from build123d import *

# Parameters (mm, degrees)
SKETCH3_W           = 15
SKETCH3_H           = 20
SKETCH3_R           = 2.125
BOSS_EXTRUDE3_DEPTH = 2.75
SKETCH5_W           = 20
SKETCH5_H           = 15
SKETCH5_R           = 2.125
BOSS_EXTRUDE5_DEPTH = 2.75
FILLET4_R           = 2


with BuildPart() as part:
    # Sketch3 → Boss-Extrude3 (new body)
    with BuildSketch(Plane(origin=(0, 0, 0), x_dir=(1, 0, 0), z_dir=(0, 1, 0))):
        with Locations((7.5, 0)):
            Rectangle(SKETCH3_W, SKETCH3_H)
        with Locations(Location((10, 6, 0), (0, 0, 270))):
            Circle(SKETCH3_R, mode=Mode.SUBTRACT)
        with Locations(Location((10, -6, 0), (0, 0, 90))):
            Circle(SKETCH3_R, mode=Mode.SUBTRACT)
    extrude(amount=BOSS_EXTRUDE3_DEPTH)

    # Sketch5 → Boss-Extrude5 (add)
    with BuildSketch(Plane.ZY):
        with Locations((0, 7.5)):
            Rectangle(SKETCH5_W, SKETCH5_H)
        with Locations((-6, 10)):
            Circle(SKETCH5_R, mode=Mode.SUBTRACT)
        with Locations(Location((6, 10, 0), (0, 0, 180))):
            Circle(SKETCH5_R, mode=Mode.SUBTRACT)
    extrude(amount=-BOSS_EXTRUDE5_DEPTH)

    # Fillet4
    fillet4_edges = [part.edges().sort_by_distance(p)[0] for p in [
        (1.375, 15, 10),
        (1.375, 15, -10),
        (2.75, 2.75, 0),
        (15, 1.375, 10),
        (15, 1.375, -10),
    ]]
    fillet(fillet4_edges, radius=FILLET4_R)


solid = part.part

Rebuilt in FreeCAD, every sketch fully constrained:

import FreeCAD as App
import Part
import Sketcher

V = App.Vector


def edges_at(feature, points):
    """Names of the edges that pass closest to the given points."""
    edges = feature.Shape.Edges
    near = lambda p: min(range(len(edges)), key=lambda i: edges[i].distToShape(Part.Vertex(*p))[0])
    return sorted({f"Edge{near(p) + 1}" for p in points})


def add_polygon(sketch, points):
    """Adds a closed chain of lines whose ends are joined by coincident constraints."""
    first, n = sketch.GeometryCount, len(points)
    for a, b in zip(points, points[1:] + points[:1]):
        sketch.addGeometry(Part.LineSegment(App.Vector(*a, 0), App.Vector(*b, 0)), False)
    for i in range(n):
        sketch.addConstraint(Sketcher.Constraint("Coincident", first + i, 2, first + (i + 1) % n, 1))

doc = App.newDocument("Part")
body = doc.addObject("PartDesign::Body", "Body")

# Sketch on XZ plane
sketch1 = body.newObject("Sketcher::SketchObject", "Sketch")
sketch1.AttachmentSupport = (doc.getObject("XZ_Plane"), [""])
sketch1.MapMode = "FlatFace"
add_polygon(sketch1, [(0, -10), (0, 10), (15, 10), (15, -10)])  # lines 0-3
sketch1.addGeometry(Part.Circle(V(10, 6, 0), V(0, 0, 1), 2.1), False)  # 4
sketch1.addGeometry(Part.Circle(V(10, -6, 0), V(0, 0, 1), 2.1), False)  # 5
sketch1.addConstraint([
    Sketcher.Constraint("Vertical", 0),
    Sketcher.Constraint("Horizontal", 1),
    Sketcher.Constraint("Vertical", 2),
    Sketcher.Constraint("Horizontal", 3),
    Sketcher.Constraint("Equal", 4, 5),
    Sketcher.Constraint("Symmetric", 0, 2, 3, 2, -1, 1),
    Sketcher.Constraint("Symmetric", 4, 3, 5, 3, -1),
    Sketcher.Constraint("Diameter", 4, 4.25),
    Sketcher.Constraint("DistanceX", 1, 1, 1, 2, 15.0),
    Sketcher.Constraint("DistanceY", 0, 1, 0, 2, 20.0),
    Sketcher.Constraint("DistanceX", -1, 1, 4, 3, 10.0),
    Sketcher.Constraint("DistanceY", -1, 1, 4, 3, 6.0),
])
pad1 = body.newObject("PartDesign::Pad", "Pad")
pad1.Profile = sketch1
pad1.Length = 2.75
pad1.Reversed = True

# Sketch on YZ plane
sketch2 = body.newObject("Sketcher::SketchObject", "Sketch001")
sketch2.AttachmentSupport = (doc.getObject("YZ_Plane"), [""])
sketch2.MapMode = "FlatFace"
add_polygon(sketch2, [(15, -10), (0, -10), (0, 10), (15, 10)])  # lines 0-3
sketch2.addGeometry(Part.Circle(V(10, -6, 0), V(0, 0, 1), 2.1), False)  # 4
sketch2.addGeometry(Part.Circle(V(10, 6, 0), V(0, 0, 1), 2.1), False)  # 5
sketch2.addConstraint([
    Sketcher.Constraint("Horizontal", 0),
    Sketcher.Constraint("Vertical", 1),
    Sketcher.Constraint("Horizontal", 2),
    Sketcher.Constraint("Vertical", 3),
    Sketcher.Constraint("Equal", 4, 5),
    Sketcher.Constraint("Symmetric", 0, 2, 1, 2, -1, 1),
    Sketcher.Constraint("Symmetric", 4, 3, 5, 3, -1),
    Sketcher.Constraint("Diameter", 4, 4.25),
    Sketcher.Constraint("DistanceX", 0, 2, 0, 1, 15.0),
    Sketcher.Constraint("DistanceY", 1, 1, 1, 2, 20.0),
    Sketcher.Constraint("DistanceX", -1, 1, 4, 3, 10.0),
    Sketcher.Constraint("DistanceY", 4, 3, -1, 1, 6.0),
])
pad2 = body.newObject("PartDesign::Pad", "Pad001")
pad2.Profile = sketch2
pad2.Length = 2.75
doc.recompute()

fillet = body.newObject("PartDesign::Fillet", "Fillet")
fillet.Base = (pad2, edges_at(pad2, [
    (1.375, 15, 10),
    (1.375, 15, -10),
    (2.75, 2.75, 0),
    (15, 1.375, 10),
    (15, 1.375, -10),
]))
fillet.Radius = 2

doc.recompute()
